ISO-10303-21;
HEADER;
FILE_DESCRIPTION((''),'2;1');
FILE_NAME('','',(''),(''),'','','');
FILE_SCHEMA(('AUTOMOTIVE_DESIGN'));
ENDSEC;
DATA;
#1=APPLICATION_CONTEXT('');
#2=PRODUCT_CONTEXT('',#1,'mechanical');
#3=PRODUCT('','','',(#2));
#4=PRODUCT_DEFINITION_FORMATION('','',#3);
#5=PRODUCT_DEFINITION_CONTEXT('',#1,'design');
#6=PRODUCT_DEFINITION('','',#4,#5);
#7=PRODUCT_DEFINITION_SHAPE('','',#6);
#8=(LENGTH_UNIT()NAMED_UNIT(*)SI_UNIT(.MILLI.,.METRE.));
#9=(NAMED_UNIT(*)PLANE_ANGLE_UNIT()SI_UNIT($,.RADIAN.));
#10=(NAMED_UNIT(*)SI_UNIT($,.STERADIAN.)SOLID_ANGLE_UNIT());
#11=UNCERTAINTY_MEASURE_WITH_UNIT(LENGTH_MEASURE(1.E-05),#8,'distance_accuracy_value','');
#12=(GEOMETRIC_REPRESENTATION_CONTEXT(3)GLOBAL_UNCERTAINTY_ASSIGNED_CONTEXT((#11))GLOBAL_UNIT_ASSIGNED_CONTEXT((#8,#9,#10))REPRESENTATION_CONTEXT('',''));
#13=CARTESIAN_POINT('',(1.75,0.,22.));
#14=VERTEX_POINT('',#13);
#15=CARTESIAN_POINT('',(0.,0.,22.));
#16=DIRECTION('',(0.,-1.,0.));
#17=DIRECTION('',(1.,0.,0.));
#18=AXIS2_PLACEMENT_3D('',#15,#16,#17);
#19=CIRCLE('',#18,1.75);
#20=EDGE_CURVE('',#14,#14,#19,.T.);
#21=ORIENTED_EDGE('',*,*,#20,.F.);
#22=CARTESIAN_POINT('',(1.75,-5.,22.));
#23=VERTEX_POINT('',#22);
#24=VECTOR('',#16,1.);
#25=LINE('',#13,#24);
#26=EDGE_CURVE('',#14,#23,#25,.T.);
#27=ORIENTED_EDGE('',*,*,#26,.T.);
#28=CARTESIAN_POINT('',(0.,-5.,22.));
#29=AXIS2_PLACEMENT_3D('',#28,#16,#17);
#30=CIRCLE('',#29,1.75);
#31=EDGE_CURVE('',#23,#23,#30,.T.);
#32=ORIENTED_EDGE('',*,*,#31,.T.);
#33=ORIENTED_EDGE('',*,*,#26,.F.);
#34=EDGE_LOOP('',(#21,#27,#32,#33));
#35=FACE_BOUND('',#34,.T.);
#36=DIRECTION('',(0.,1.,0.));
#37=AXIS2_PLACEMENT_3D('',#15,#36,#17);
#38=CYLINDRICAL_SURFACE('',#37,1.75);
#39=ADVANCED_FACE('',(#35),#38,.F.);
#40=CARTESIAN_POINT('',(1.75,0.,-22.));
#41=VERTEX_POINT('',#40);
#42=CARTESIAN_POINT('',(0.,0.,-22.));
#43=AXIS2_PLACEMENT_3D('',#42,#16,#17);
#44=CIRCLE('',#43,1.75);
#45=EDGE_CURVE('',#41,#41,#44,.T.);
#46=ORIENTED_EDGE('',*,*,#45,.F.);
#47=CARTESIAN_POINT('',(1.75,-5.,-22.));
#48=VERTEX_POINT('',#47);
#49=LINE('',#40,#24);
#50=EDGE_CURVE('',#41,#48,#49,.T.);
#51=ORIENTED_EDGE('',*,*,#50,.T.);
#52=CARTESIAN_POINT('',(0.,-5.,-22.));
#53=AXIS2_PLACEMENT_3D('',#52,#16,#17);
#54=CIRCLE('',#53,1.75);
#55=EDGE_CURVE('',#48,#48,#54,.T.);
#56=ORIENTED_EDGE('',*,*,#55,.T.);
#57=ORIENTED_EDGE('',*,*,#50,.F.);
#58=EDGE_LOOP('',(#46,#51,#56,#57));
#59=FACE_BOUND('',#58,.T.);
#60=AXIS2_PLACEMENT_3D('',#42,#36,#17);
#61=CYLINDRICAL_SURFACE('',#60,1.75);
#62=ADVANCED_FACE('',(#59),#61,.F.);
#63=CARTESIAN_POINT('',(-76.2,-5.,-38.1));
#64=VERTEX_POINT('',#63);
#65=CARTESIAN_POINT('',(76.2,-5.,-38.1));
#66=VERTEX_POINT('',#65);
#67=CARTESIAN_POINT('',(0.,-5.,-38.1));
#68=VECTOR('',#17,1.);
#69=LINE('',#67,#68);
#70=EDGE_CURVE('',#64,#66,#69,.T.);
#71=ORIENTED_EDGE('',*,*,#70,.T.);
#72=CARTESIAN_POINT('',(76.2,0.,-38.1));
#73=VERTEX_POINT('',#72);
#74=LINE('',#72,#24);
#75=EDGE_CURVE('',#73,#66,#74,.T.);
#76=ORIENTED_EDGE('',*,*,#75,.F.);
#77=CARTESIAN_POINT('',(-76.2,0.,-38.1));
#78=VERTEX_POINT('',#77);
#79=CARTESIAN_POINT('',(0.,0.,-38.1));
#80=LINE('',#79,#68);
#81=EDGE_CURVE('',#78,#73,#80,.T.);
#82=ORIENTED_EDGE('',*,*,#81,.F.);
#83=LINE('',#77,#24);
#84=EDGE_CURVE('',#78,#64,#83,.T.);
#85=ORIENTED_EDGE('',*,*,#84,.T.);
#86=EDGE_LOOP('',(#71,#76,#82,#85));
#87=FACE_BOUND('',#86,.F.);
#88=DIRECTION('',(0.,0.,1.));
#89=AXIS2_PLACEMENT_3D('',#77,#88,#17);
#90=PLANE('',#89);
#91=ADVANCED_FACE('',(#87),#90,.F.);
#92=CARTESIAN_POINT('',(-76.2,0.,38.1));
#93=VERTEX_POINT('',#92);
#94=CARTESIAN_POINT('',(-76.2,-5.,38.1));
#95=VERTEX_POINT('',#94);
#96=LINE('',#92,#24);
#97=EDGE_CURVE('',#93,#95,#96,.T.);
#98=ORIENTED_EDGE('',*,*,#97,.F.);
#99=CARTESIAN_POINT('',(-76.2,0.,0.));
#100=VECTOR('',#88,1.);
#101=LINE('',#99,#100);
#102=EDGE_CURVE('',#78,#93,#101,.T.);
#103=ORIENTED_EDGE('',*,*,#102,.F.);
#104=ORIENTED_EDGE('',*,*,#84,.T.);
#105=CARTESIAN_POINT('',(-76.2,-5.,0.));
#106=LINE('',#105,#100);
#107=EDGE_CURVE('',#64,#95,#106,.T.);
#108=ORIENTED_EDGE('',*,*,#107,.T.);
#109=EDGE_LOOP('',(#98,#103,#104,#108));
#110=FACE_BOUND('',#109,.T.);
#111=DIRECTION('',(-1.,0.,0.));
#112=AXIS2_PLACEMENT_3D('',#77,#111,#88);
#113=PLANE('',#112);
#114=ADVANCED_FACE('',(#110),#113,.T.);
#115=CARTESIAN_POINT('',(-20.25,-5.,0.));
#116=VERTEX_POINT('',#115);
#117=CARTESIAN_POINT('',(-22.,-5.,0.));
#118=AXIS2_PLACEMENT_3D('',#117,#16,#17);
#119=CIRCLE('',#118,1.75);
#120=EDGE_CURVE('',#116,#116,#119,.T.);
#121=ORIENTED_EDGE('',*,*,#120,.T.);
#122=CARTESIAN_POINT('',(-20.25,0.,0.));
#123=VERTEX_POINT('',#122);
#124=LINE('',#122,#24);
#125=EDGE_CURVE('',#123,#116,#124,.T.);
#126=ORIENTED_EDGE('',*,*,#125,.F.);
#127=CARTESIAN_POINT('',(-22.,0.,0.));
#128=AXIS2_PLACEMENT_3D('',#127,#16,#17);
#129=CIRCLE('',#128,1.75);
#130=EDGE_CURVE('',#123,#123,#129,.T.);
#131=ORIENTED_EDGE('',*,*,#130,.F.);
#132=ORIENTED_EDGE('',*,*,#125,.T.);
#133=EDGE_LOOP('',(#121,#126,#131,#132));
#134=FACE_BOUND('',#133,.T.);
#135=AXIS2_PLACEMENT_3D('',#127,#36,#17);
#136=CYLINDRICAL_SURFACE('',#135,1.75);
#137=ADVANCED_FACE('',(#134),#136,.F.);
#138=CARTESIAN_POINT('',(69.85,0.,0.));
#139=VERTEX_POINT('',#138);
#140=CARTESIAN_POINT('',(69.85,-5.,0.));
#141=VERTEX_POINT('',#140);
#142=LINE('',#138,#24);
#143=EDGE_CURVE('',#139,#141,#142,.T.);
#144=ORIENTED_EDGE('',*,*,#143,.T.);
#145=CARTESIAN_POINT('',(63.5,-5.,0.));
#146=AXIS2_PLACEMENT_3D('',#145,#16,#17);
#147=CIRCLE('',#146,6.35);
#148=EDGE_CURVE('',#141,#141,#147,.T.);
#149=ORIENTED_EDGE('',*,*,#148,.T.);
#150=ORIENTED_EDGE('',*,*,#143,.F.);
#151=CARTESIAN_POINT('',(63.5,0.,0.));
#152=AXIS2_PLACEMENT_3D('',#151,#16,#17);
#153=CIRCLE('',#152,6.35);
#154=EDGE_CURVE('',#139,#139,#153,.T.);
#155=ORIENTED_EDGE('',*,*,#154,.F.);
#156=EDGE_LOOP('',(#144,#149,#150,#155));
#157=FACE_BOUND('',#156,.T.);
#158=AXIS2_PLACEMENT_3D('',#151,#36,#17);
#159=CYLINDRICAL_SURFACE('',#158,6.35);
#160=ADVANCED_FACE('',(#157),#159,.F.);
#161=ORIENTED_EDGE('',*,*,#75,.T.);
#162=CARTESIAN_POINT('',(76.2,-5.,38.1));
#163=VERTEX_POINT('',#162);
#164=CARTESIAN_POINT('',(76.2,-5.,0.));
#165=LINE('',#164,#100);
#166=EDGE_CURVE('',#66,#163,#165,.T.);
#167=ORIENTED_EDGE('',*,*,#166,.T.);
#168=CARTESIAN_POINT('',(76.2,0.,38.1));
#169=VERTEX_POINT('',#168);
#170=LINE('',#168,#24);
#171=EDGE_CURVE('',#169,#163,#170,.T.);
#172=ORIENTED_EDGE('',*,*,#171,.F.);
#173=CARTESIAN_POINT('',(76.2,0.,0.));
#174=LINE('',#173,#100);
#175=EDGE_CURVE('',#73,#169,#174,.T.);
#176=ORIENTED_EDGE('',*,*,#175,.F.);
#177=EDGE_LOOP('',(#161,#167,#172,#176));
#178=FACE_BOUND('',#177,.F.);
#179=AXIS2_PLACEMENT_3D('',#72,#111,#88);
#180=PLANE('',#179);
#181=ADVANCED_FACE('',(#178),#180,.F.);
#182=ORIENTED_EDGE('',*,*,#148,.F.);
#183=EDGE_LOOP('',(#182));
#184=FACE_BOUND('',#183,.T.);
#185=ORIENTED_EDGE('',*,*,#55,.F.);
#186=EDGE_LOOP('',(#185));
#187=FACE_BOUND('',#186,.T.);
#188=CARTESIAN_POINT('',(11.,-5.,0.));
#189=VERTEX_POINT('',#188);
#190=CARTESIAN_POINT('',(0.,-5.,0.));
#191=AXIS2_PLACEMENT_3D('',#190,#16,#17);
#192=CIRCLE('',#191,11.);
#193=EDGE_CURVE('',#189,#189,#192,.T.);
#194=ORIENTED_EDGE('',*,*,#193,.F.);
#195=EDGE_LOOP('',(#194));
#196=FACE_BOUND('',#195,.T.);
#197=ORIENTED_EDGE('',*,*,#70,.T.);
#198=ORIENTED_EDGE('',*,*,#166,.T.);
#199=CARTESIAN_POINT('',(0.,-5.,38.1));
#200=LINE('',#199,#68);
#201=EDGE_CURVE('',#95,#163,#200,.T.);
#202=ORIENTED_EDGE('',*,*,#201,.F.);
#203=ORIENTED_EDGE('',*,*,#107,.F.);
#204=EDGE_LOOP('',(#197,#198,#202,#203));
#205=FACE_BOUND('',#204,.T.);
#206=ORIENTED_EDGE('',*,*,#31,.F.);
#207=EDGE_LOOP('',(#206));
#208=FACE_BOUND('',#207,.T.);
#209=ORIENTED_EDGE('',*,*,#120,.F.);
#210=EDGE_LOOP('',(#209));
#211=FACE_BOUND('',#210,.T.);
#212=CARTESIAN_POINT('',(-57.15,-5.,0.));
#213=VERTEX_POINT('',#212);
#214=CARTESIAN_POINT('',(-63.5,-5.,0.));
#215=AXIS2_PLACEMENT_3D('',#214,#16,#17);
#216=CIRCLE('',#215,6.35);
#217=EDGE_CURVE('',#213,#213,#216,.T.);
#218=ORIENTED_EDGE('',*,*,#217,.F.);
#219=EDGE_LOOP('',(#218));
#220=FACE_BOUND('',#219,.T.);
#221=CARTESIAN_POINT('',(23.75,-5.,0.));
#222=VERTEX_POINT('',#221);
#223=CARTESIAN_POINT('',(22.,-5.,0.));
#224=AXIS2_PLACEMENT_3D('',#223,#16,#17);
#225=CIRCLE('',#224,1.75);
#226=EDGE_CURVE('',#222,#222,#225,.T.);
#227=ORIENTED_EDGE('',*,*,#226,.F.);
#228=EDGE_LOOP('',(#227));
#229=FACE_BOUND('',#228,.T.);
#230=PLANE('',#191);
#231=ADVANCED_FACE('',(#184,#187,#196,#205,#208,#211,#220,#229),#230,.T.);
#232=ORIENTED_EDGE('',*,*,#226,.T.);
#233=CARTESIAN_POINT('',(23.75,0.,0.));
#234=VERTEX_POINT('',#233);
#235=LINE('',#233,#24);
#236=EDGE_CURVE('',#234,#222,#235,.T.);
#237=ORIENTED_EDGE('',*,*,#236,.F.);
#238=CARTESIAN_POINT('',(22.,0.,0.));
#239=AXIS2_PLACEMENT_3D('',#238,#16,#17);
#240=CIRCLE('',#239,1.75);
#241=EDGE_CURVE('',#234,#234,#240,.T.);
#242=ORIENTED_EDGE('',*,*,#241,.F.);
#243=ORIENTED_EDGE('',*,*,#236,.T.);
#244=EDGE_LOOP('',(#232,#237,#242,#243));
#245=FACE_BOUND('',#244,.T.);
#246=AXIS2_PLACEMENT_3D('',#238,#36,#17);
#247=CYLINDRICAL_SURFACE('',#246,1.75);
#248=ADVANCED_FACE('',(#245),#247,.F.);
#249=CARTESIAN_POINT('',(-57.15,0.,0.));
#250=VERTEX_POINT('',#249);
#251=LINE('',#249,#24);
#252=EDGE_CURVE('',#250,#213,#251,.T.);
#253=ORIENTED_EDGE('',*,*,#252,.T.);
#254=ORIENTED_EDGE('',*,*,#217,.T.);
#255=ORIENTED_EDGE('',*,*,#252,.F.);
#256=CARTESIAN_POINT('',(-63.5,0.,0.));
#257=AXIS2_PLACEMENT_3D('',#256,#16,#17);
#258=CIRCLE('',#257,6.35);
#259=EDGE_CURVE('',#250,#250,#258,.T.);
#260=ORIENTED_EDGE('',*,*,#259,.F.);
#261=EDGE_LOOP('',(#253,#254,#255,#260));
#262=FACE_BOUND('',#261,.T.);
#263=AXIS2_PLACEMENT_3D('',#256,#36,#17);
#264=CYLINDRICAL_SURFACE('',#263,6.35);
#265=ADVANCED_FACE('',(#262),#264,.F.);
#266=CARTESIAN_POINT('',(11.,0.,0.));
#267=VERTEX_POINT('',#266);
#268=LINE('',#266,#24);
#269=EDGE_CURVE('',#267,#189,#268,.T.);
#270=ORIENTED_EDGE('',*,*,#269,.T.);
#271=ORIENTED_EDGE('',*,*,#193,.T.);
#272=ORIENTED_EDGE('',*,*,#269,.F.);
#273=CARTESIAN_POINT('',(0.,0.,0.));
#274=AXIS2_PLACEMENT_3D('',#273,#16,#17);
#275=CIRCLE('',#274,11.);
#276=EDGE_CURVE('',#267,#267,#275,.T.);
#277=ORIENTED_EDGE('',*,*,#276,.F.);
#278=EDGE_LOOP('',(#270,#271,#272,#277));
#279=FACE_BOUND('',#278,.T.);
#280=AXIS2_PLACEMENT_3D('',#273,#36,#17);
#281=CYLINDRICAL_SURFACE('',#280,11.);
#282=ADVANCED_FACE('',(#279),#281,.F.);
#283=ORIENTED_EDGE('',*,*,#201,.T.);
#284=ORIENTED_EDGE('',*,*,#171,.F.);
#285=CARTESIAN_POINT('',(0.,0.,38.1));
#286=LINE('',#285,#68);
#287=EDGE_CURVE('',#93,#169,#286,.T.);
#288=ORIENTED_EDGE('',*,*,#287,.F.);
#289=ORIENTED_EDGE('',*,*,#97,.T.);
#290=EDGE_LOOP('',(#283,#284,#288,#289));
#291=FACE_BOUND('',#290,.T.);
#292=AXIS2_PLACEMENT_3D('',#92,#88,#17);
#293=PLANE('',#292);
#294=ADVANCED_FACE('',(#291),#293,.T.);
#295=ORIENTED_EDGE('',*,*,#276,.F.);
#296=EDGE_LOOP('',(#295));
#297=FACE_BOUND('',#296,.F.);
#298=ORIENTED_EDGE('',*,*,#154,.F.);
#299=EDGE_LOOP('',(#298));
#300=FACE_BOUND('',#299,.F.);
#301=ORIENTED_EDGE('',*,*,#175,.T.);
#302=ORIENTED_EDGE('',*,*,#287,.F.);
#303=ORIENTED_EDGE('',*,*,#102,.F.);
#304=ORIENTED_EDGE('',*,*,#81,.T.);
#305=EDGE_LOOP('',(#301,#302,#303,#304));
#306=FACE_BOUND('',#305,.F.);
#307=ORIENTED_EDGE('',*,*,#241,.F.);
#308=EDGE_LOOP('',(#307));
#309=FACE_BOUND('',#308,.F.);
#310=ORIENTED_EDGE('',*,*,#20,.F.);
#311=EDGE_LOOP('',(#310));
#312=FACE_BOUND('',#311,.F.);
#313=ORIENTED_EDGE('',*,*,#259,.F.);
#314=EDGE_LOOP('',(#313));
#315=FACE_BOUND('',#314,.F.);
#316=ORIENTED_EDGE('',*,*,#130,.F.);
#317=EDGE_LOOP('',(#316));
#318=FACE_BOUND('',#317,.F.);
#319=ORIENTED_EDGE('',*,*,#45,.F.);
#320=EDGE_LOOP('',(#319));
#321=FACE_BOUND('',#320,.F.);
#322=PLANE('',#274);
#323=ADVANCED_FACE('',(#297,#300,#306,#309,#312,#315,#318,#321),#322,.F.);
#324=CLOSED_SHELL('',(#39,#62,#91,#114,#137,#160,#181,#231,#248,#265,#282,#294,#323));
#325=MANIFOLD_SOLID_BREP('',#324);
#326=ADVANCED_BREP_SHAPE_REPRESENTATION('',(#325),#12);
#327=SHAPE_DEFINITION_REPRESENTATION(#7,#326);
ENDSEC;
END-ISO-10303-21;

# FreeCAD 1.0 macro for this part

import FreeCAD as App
import Part
import Sketcher
Q = App.Units.Quantity


def add_polygon(sketch, points):
    """Adds a closed chain of lines whose ends are joined by coincident constraints."""
    first, n = sketch.GeometryCount, len(points)
    for a, b in zip(points, points[1:] + points[:1]):
        sketch.addGeometry(Part.LineSegment(App.Vector(*a, 0), App.Vector(*b, 0)), False)
    for i in range(n):
        sketch.addConstraint(Sketcher.Constraint("Coincident", first + i, 2, first + (i + 1) % n, 1))

doc = App.newDocument("Part")
params = doc.addObject("Spreadsheet::Sheet", "Params")
for row, (alias, value) in enumerate([
    ("sketch1_diameter", "22 mm"),
    ("sketch1_diameter2", "3.5 mm"),
    ("sketch1_diameter3", "12.7 mm"),
    ("sketch1_width", "152.4 mm"),
    ("sketch1_height", "76.2 mm"),
    ("pad1_length", "5 mm"),
], start=1):
    params.set(f"A{row}", alias)
    params.set(f"B{row}", "=" + value)
    params.setAlias(f"B{row}", alias)

body = doc.addObject("PartDesign::Body", "Body")

# Sketch on XZ plane
sketch1 = body.newObject("Sketcher::SketchObject", "Sketch")
sketch1.AttachmentSupport = (doc.getObject("XZ_Plane"), [""])
sketch1.MapMode = "FlatFace"
add_polygon(sketch1, [(-76.2, 38.1), (-76.2, -38.1), (76.2, -38.1), (76.2, 38.1)])  # lines 0-3
sketch1.addGeometry(Part.Circle(App.Vector(0, -22, 0), App.Vector(0, 0, 1), 1.8), False)  # 4
sketch1.addGeometry(Part.Circle(App.Vector(-63.5, 0, 0), App.Vector(0, 0, 1), 6.3), False)  # 5
sketch1.addGeometry(Part.Circle(App.Vector(-22, 0, 0), App.Vector(0, 0, 1), 1.8), False)  # 6
sketch1.addGeometry(Part.Circle(App.Vector(0, 0, 0), App.Vector(0, 0, 1), 11), False)  # 7
sketch1.addGeometry(Part.Circle(App.Vector(22, 0, 0), App.Vector(0, 0, 1), 1.8), False)  # 8
sketch1.addGeometry(Part.Circle(App.Vector(63.5, 0, 0), App.Vector(0, 0, 1), 6.3), False)  # 9
sketch1.addGeometry(Part.Circle(App.Vector(0, 22, 0), App.Vector(0, 0, 1), 1.8), False)  # 10
sketch1.addConstraint(Sketcher.Constraint("Vertical", 0))
sketch1.addConstraint(Sketcher.Constraint("Horizontal", 1))
sketch1.addConstraint(Sketcher.Constraint("Vertical", 2))
sketch1.addConstraint(Sketcher.Constraint("Horizontal", 3))
sketch1.addConstraint(Sketcher.Constraint("Coincident", 7, 3, -1, 1))
sketch1.addConstraint(Sketcher.Constraint("Equal", 4, 6))
sketch1.addConstraint(Sketcher.Constraint("Equal", 6, 8))
sketch1.addConstraint(Sketcher.Constraint("Equal", 5, 9))
sketch1.addConstraint(Sketcher.Constraint("Equal", 8, 10))
sketch1.addConstraint(Sketcher.Constraint("Symmetric", 6, 3, 8, 3, -1, 1))
sketch1.addConstraint(Sketcher.Constraint("Symmetric", 5, 3, 9, 3, -1, 1))
sketch1.addConstraint(Sketcher.Constraint("Symmetric", 4, 3, 10, 3, -1, 1))
sketch1.addConstraint(Sketcher.Constraint("Symmetric", 0, 2, 2, 2, -1, 1))
sketch1.addConstraint(Sketcher.Constraint("PointOnObject", 4, 3, -2))
sketch1.addConstraint(Sketcher.Constraint("PointOnObject", 5, 3, -1))
sketch1.addConstraint(Sketcher.Constraint("PointOnObject", 6, 3, -1))
sketch1.addConstraint(Sketcher.Constraint("Diameter", 7, Q("22 mm")))
sketch1.addConstraint(Sketcher.Constraint("Diameter", 4, Q("3.5 mm")))
sketch1.addConstraint(Sketcher.Constraint("Diameter", 5, Q("12.7 mm")))
sketch1.addConstraint(Sketcher.Constraint("DistanceX", 1, 1, 1, 2, Q("152.4 mm")))
sketch1.addConstraint(Sketcher.Constraint("DistanceY", 0, 2, 0, 1, Q("76.2 mm")))
sketch1.addConstraint(Sketcher.Constraint("DistanceY", 4, 3, -1, 1, Q("22 mm")))
sketch1.addConstraint(Sketcher.Constraint("DistanceX", 6, 3, -1, 1, Q("22 mm")))
sketch1.addConstraint(Sketcher.Constraint("DistanceX", 5, 3, 9, 3, Q("127 mm")))
sketch1.setExpression("Constraints[20]", "Params.sketch1_diameter")
sketch1.setExpression("Constraints[21]", "Params.sketch1_diameter2")
sketch1.setExpression("Constraints[22]", "Params.sketch1_diameter3")
sketch1.setExpression("Constraints[23]", "Params.sketch1_width")
sketch1.setExpression("Constraints[24]", "Params.sketch1_height")
pad1 = body.newObject("PartDesign::Pad", "Pad")
pad1.Profile = sketch1
pad1.setExpression("Length", "Params.pad1_length")

doc.recompute()
